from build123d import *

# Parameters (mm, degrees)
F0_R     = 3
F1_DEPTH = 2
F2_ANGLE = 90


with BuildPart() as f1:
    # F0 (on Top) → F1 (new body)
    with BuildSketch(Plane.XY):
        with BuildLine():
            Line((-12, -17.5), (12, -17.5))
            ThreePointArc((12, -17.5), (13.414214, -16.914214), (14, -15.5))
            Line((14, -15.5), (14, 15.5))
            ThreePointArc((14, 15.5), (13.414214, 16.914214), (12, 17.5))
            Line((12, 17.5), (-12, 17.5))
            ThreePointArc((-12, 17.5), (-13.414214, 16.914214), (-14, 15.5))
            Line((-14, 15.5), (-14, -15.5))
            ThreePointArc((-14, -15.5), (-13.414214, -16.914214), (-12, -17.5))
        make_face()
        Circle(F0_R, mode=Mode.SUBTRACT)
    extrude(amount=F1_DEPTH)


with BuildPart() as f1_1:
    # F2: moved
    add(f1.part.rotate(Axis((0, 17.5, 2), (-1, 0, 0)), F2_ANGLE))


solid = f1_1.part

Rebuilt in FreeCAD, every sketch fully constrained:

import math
import FreeCAD as App
import Part
import Sketcher

doc = App.newDocument("Part")
params = doc.addObject("Spreadsheet::Sheet", "Params")
for row, (alias, value) in enumerate([
    ("sketch1_diameter", "6 mm"),
    ("sketch1_radius", "1.999999 mm"),
    ("sketch1_width", "24 mm"),
    ("sketch1_height", "31 mm"),
    ("pad1_length", "2 mm"),
], start=1):
    params.set(f"A{row}", alias)
    params.set(f"B{row}", "=" + value)
    params.setAlias(f"B{row}", alias)

body = doc.addObject("PartDesign::Body", "Body")

# Sketch on XY plane
sketch1 = doc.addObject("Sketcher::SketchObject", "Sketch")
body.addObject(sketch1)
sketch1.AttachmentSupport = (doc.XY_Plane, [""])
sketch1.MapMode = "FlatFace"
sketch1.addGeometry([
    Part.LineSegment(App.Vector(-12, -17.5, 0), App.Vector(12, -17.5, 0)),  # 0
    Part.ArcOfCircle(Part.Circle(App.Vector(12.000001, -15.500001, 0), App.Vector(0, 0, 1), 1.999999), math.radians(-90.000043), math.radians(0.000043)),  # 1
    Part.LineSegment(App.Vector(14, -15.5, 0), App.Vector(14, 15.5, 0)),  # 2
    Part.ArcOfCircle(Part.Circle(App.Vector(12.000001, 15.500001, 0), App.Vector(0, 0, 1), 1.999999), math.radians(-0.000043), math.radians(90.000043)),  # 3
    Part.LineSegment(App.Vector(12, 17.5, 0), App.Vector(-12, 17.5, 0)),  # 4
    Part.ArcOfCircle(Part.Circle(App.Vector(-12.000001, 15.500001, 0), App.Vector(0, 0, 1), 1.999999), math.radians(89.999957), math.radians(180.000043)),  # 5
    Part.LineSegment(App.Vector(-14, 15.5, 0), App.Vector(-14, -15.5, 0)),  # 6
    Part.ArcOfCircle(Part.Circle(App.Vector(-12.000001, -15.500001, 0), App.Vector(0, 0, 1), 1.999999), math.radians(179.999957), math.radians(270.000043)),  # 7
    Part.Circle(App.Vector(0, 0, 0), App.Vector(0, 0, 1), 3),  # 8
], False)
sketch1.addConstraint([
    Sketcher.Constraint("Tangent", 0, 2, 1, 1),
    Sketcher.Constraint("Tangent", 1, 2, 2, 1),
    Sketcher.Constraint("Tangent", 2, 2, 3, 1),
    Sketcher.Constraint("Tangent", 3, 2, 4, 1),
    Sketcher.Constraint("Tangent", 4, 2, 5, 1),
    Sketcher.Constraint("Tangent", 5, 2, 6, 1),
    Sketcher.Constraint("Tangent", 6, 2, 7, 1),
    Sketcher.Constraint("Tangent", 7, 2, 0, 1),
    Sketcher.Constraint("Horizontal", 0),
    Sketcher.Constraint("Vertical", 2),
    Sketcher.Constraint("Horizontal", 4),
    Sketcher.Constraint("Vertical", 6),
    Sketcher.Constraint("Coincident", 8, 3, -1, 1),
    Sketcher.Constraint("Equal", 1, 3),
    Sketcher.Constraint("Equal", 3, 5),
    Sketcher.Constraint("Equal", 5, 7),
    Sketcher.Constraint("Symmetric", 1, 3, 5, 3, -1, 1),
    Sketcher.Constraint("Diameter", 8, 6.0),
    Sketcher.Constraint("Radius", 1, 1.999999),
    Sketcher.Constraint("DistanceX", 0, 1, 0, 2, 24.0),
    Sketcher.Constraint("DistanceY", 2, 1, 2, 2, 31.0),
])
sketch1.setExpression("Constraints[17]", "Params.sketch1_diameter")
sketch1.setExpression("Constraints[18]", "Params.sketch1_radius")
sketch1.setExpression("Constraints[19]", "Params.sketch1_width")
sketch1.setExpression("Constraints[20]", "Params.sketch1_height")
pad1 = doc.addObject("PartDesign::Pad", "Pad")
body.addObject(pad1)
pad1.Profile = sketch1
pad1.setExpression("Length", "Params.pad1_length")
body2 = doc.addObject("PartDesign::Body", "Body001")
doc.recompute()

body.Placement = App.Placement(App.Vector(0, 15.5, 19.5), App.Rotation(App.Vector(-1, 0, 0), 90))
boolean = doc.addObject("PartDesign::Boolean", "Boolean")
body2.addObject(boolean)
boolean.Type = "Fuse"
boolean.addObjects([body])

doc.recompute()
